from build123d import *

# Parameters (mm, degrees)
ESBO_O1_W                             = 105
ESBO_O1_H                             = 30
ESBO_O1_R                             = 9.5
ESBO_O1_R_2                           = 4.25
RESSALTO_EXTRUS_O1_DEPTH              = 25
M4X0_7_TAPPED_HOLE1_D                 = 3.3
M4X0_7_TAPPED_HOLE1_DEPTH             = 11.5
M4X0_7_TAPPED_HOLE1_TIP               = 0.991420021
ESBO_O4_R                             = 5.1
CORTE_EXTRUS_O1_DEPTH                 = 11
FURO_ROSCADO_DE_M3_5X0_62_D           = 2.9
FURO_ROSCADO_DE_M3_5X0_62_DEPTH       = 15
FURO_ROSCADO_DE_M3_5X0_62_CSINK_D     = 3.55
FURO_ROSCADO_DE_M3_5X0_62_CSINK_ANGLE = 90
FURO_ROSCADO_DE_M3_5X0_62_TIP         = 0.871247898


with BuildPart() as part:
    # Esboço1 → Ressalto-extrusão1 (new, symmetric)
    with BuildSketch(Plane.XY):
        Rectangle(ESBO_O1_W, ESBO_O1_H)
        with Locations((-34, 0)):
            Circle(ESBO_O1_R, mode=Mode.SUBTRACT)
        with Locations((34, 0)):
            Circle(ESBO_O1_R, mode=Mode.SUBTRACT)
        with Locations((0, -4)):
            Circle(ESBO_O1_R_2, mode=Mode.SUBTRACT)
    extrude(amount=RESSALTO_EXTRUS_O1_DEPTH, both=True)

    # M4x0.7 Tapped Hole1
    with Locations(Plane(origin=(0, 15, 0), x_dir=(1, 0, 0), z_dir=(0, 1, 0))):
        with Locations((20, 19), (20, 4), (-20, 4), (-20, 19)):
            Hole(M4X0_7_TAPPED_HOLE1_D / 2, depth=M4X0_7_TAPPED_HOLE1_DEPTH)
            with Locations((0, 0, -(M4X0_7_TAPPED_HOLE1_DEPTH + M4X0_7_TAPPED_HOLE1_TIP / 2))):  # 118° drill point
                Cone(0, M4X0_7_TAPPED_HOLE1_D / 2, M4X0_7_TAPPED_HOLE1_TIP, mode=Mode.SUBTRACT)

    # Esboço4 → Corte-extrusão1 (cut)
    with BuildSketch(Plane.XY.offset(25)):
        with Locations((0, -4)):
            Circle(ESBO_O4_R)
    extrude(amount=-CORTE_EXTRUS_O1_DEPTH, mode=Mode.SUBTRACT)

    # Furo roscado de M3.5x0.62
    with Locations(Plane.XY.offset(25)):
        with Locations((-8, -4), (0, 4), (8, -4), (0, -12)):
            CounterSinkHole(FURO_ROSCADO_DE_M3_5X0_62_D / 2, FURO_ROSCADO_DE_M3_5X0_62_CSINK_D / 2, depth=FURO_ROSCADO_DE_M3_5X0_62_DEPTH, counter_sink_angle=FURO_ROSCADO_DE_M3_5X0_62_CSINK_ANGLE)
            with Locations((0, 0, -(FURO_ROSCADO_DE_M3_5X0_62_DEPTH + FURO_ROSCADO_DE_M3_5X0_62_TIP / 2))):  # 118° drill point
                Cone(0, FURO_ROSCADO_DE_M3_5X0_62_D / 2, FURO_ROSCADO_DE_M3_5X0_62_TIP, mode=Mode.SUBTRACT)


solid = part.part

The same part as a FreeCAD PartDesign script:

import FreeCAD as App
import Part
import Sketcher


def add_polygon(sketch, points):
    """Adds a closed chain of lines whose ends are joined by coincident constraints."""
    first, n = sketch.GeometryCount, len(points)
    for a, b in zip(points, points[1:] + points[:1]):
        sketch.addGeometry(Part.LineSegment(App.Vector(*a, 0), App.Vector(*b, 0)), False)
    for i in range(n):
        sketch.addConstraint(Sketcher.Constraint("Coincident", first + i, 2, first + (i + 1) % n, 1))

doc = App.newDocument("Part")
body = doc.addObject("PartDesign::Body", "Body")

sketch1 = body.newObject("Sketcher::SketchObject", "Sketch")
sketch1.AttachmentSupport = (doc.getObject("XY_Plane"), [""])
sketch1.MapMode = "FlatFace"
add_polygon(sketch1, [(-52.5, 15), (-52.5, -15), (52.5, -15), (52.5, 15)])
sketch1.addGeometry(Part.Circle(App.Vector(0, -4, 0), App.Vector(0, 0, 1), 4.2), False)
sketch1.addGeometry(Part.Circle(App.Vector(-34, 0, 0), App.Vector(0, 0, 1), 9.5), False)
sketch1.addGeometry(Part.Circle(App.Vector(34, 0, 0), App.Vector(0, 0, 1), 9.5), False)
sketch1.addConstraint(Sketcher.Constraint("Vertical", 0))
sketch1.addConstraint(Sketcher.Constraint("Horizontal", 1))
sketch1.addConstraint(Sketcher.Constraint("Vertical", 2))
sketch1.addConstraint(Sketcher.Constraint("Horizontal", 3))
sketch1.addConstraint(Sketcher.Constraint("Equal", 5, 6))
sketch1.addConstraint(Sketcher.Constraint("Symmetric", 5, 3, 6, 3, -1, 1))
sketch1.addConstraint(Sketcher.Constraint("Symmetric", 0, 2, 2, 2, -1, 1))
sketch1.addConstraint(Sketcher.Constraint("PointOnObject", 4, 3, -2))
sketch1.addConstraint(Sketcher.Constraint("PointOnObject", 5, 3, -1))
sketch1.addConstraint(Sketcher.Constraint("Diameter", 5, 19.0))
sketch1.addConstraint(Sketcher.Constraint("Diameter", 4, 8.5))
sketch1.addConstraint(Sketcher.Constraint("DistanceX", 1, 1, 1, 2, 105.0))
sketch1.addConstraint(Sketcher.Constraint("DistanceY", 0, 2, 0, 1, 30.0))
sketch1.addConstraint(Sketcher.Constraint("DistanceY", 4, 3, -1, 1, 4.0))
sketch1.addConstraint(Sketcher.Constraint("DistanceX", 5, 3, -1, 1, 34.0))
pad1 = body.newObject("PartDesign::Pad", "Pad")
pad1.Profile = sketch1
pad1.Length = 50
pad1.Midplane = True

sketch2 = body.newObject("Sketcher::SketchObject", "Sketch001")
sketch2.AttachmentSupport = (doc.getObject("XZ_Plane"), [""])
sketch2.MapMode = "FlatFace"
sketch2.AttachmentOffset = App.Placement(App.Vector(0, 0, -15), App.Rotation())
sketch2.addGeometry(Part.Circle(App.Vector(20, -19, 0), App.Vector(0, 0, 1), 1.6), False)
sketch2.addGeometry(Part.Circle(App.Vector(20, -4, 0), App.Vector(0, 0, 1), 1.6), False)
sketch2.addGeometry(Part.Circle(App.Vector(-20, -4, 0), App.Vector(0, 0, 1), 1.6), False)
sketch2.addGeometry(Part.Circle(App.Vector(-20, -19, 0), App.Vector(0, 0, 1), 1.6), False)
sketch2.addConstraint(Sketcher.Constraint("Equal", 0, 1))
sketch2.addConstraint(Sketcher.Constraint("Equal", 1, 2))
sketch2.addConstraint(Sketcher.Constraint("Equal", 2, 3))
sketch2.addConstraint(Sketcher.Constraint("Symmetric", 1, 3, 2, 3, -2))
sketch2.addConstraint(Sketcher.Constraint("Symmetric", 0, 3, 3, 3, -2))
sketch2.addConstraint(Sketcher.Constraint("Vertical", 0, 3, 1, 3))
sketch2.addConstraint(Sketcher.Constraint("Diameter", 0, 3.3))
sketch2.addConstraint(Sketcher.Constraint("DistanceX", -1, 1, 0, 3, 20.0))
sketch2.addConstraint(Sketcher.Constraint("DistanceY", 0, 3, -1, 1, 19.0))
sketch2.addConstraint(Sketcher.Constraint("DistanceY", 1, 3, -1, 1, 4.0))
doc.recompute()
hole = body.newObject("PartDesign::Hole", "Hole")
hole.Profile = sketch2
hole.ThreadType = "None"
hole.Diameter = 3.3
hole.DepthType = "Dimension"
hole.Depth = 11.5
hole.DrillPoint = "Angled"
hole.DrillPointAngle = 118
hole.Reversed = True

sketch3 = body.newObject("Sketcher::SketchObject", "Sketch002")
sketch3.AttachmentSupport = (doc.getObject("XY_Plane"), [""])
sketch3.MapMode = "FlatFace"
sketch3.AttachmentOffset = App.Placement(App.Vector(0, 0, 25), App.Rotation())
sketch3.addGeometry(Part.Circle(App.Vector(0, -4, 0), App.Vector(0, 0, 1), 5), False)
sketch3.addConstraint(Sketcher.Constraint("PointOnObject", 0, 3, -2))
sketch3.addConstraint(Sketcher.Constraint("Diameter", 0, 10.2))
sketch3.addConstraint(Sketcher.Constraint("DistanceY", 0, 3, -1, 1, 4.0))
pocket1 = body.newObject("PartDesign::Pocket", "Pocket")
pocket1.Profile = sketch3
pocket1.Length = 11

sketch4 = body.newObject("Sketcher::SketchObject", "Sketch003")
sketch4.AttachmentSupport = (doc.getObject("XY_Plane"), [""])
sketch4.MapMode = "FlatFace"
sketch4.AttachmentOffset = App.Placement(App.Vector(0, 0, 25), App.Rotation())
sketch4.addGeometry(Part.Circle(App.Vector(-8, -4, 0), App.Vector(0, 0, 1), 1.4), False)
sketch4.addGeometry(Part.Circle(App.Vector(0, 4, 0), App.Vector(0, 0, 1), 1.4), False)
sketch4.addGeometry(Part.Circle(App.Vector(8, -4, 0), App.Vector(0, 0, 1), 1.4), False)
sketch4.addGeometry(Part.Circle(App.Vector(0, -12, 0), App.Vector(0, 0, 1), 1.4), False)
sketch4.addConstraint(Sketcher.Constraint("Equal", 0, 1))
sketch4.addConstraint(Sketcher.Constraint("Equal", 1, 2))
sketch4.addConstraint(Sketcher.Constraint("Equal", 2, 3))
sketch4.addConstraint(Sketcher.Constraint("Symmetric", 0, 3, 2, 3, -2))
sketch4.addConstraint(Sketcher.Constraint("PointOnObject", 1, 3, -2))
sketch4.addConstraint(Sketcher.Constraint("PointOnObject", 3, 3, -2))
sketch4.addConstraint(Sketcher.Constraint("Diameter", 0, 2.9))
sketch4.addConstraint(Sketcher.Constraint("DistanceX", 0, 3, -1, 1, 8.0))
sketch4.addConstraint(Sketcher.Constraint("DistanceY", 0, 3, -1, 1, 4.0))
sketch4.addConstraint(Sketcher.Constraint("DistanceY", -1, 1, 1, 3, 4.0))
sketch4.addConstraint(Sketcher.Constraint("DistanceY", 3, 3, -1, 1, 12.0))
doc.recompute()
hole2 = body.newObject("PartDesign::Hole", "Hole001")
hole2.Profile = sketch4
hole2.ThreadType = "None"
hole2.Diameter = 2.9
hole2.DepthType = "Dimension"
hole2.Depth = 15
hole2.DrillPoint = "Angled"
hole2.DrillPointAngle = 118
hole2.HoleCutType = "Countersink"
hole2.HoleCutDiameter = 3.55
hole2.HoleCutCountersinkAngle = 90

doc.recompute()
